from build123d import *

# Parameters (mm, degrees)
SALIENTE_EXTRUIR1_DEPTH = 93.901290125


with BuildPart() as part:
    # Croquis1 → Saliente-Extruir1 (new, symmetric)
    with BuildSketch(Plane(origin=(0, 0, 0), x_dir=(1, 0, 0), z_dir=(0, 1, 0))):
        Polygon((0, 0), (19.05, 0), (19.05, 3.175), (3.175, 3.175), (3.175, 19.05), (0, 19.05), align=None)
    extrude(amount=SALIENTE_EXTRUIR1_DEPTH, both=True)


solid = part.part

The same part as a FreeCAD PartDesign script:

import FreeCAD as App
import Part
import Sketcher
from FreeCAD import Vector
Q = App.Units.Quantity

doc = App.newDocument("Part")
body = doc.addObject("PartDesign::Body", "Body")

sketch1 = body.newObject("Sketcher::SketchObject", "Sketch")
sketch1.AttachmentSupport = (doc.getObject("XZ_Plane"), [""])
sketch1.MapMode = "FlatFace"
sketch1.addGeometry([
    Part.LineSegment(Vector(0, 0, 0), Vector(19.05, 0, 0)),
    Part.LineSegment(Vector(19.05, 0, 0), Vector(19.05, -3.175, 0)),
    Part.LineSegment(Vector(19.05, -3.175, 0), Vector(3.175, -3.175, 0)),
    Part.LineSegment(Vector(3.175, -3.175, 0), Vector(3.175, -19.05, 0)),
    Part.LineSegment(Vector(3.175, -19.05, 0), Vector(0, -19.05, 0)),
    Part.LineSegment(Vector(0, -19.05, 0), Vector(0, 0, 0)),
], False)
sketch1.addConstraint([
    Sketcher.Constraint("Coincident", 0, 2, 1, 1),
    Sketcher.Constraint("Coincident", 1, 2, 2, 1),
    Sketcher.Constraint("Coincident", 2, 2, 3, 1),
    Sketcher.Constraint("Coincident", 3, 2, 4, 1),
    Sketcher.Constraint("Coincident", 4, 2, 5, 1),
    Sketcher.Constraint("Coincident", 5, 2, 0, 1),
    Sketcher.Constraint("Horizontal", 0),
    Sketcher.Constraint("Vertical", 1),
    Sketcher.Constraint("Horizontal", 2),
    Sketcher.Constraint("Vertical", 3),
    Sketcher.Constraint("Horizontal", 4),
    Sketcher.Constraint("Vertical", 5),
    Sketcher.Constraint("Coincident", 5, 2, -1, 1),
    Sketcher.Constraint("Equal", 4, 1),
    Sketcher.Constraint("Equal", 2, 3),
    Sketcher.Constraint("DistanceX", 0, 1, 0, 2, Q("0.75 in")),
    Sketcher.Constraint("DistanceX", 2, 2, 2, 1, Q("0.625 in")),
])
pad1 = body.newObject("PartDesign::Pad", "Pad")
pad1.Profile = sketch1
pad1.Length = 187.80258
pad1.Midplane = True

doc.recompute()
